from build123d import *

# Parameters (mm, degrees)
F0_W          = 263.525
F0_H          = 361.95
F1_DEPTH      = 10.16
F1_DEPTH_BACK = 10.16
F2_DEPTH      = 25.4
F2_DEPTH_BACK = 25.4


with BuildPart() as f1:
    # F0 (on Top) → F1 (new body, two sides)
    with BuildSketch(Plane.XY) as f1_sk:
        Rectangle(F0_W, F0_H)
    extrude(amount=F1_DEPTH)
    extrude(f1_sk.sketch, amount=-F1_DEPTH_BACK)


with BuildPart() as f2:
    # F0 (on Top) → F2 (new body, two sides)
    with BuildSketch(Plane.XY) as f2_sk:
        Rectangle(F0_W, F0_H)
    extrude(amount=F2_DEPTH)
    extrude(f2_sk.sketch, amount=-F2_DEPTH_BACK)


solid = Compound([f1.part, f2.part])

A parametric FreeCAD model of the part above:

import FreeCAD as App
import Part
import Sketcher
Q = App.Units.Quantity

doc = App.newDocument("Part")
body = doc.addObject("PartDesign::Body", "Body")

sketch1 = body.newObject("Sketcher::SketchObject", "Sketch")
sketch1.AttachmentSupport = (doc.getObject("XY_Plane"), [""])
sketch1.MapMode = "FlatFace"
sketch1.addGeometry(Part.LineSegment(App.Vector(-132, 181, 0), App.Vector(-132, -181, 0)), False)
sketch1.addGeometry(Part.LineSegment(App.Vector(-132, -181, 0), App.Vector(132, -181, 0)), False)
sketch1.addGeometry(Part.LineSegment(App.Vector(132, -181, 0), App.Vector(132, 181, 0)), False)
sketch1.addGeometry(Part.LineSegment(App.Vector(132, 181, 0), App.Vector(-132, 181, 0)), False)
sketch1.addConstraint(Sketcher.Constraint("Coincident", 0, 2, 1, 1))
sketch1.addConstraint(Sketcher.Constraint("Coincident", 1, 2, 2, 1))
sketch1.addConstraint(Sketcher.Constraint("Coincident", 2, 2, 3, 1))
sketch1.addConstraint(Sketcher.Constraint("Coincident", 3, 2, 0, 1))
sketch1.addConstraint(Sketcher.Constraint("Vertical", 0))
sketch1.addConstraint(Sketcher.Constraint("Horizontal", 1))
sketch1.addConstraint(Sketcher.Constraint("Vertical", 2))
sketch1.addConstraint(Sketcher.Constraint("Horizontal", 3))
sketch1.addConstraint(Sketcher.Constraint("Symmetric", 0, 2, 2, 2, -1, 1))
sketch1.addConstraint(Sketcher.Constraint("DistanceY", 0, 2, 0, 1, Q("14.25 in")))
sketch1.addConstraint(Sketcher.Constraint("DistanceX", 1, 1, 1, 2, Q("10.375 in")))
pad1 = body.newObject("PartDesign::Pad", "Pad")
pad1.Profile = sketch1
pad1.Type = "TwoLengths"
pad1.Length = Q("0.4 in")
pad1.Length2 = Q("0.4 in")
body2 = doc.addObject("PartDesign::Body", "Body001")

sketch2 = body2.newObject("Sketcher::SketchObject", "Sketch001")
sketch2.AttachmentSupport = (doc.getObject("XY_Plane001"), [""])
sketch2.MapMode = "FlatFace"
sketch2.addGeometry(Part.LineSegment(App.Vector(-132, 181, 0), App.Vector(-132, -181, 0)), False)
sketch2.addGeometry(Part.LineSegment(App.Vector(-132, -181, 0), App.Vector(132, -181, 0)), False)
sketch2.addGeometry(Part.LineSegment(App.Vector(132, -181, 0), App.Vector(132, 181, 0)), False)
sketch2.addGeometry(Part.LineSegment(App.Vector(132, 181, 0), App.Vector(-132, 181, 0)), False)
sketch2.addConstraint(Sketcher.Constraint("Coincident", 0, 2, 1, 1))
sketch2.addConstraint(Sketcher.Constraint("Coincident", 1, 2, 2, 1))
sketch2.addConstraint(Sketcher.Constraint("Coincident", 2, 2, 3, 1))
sketch2.addConstraint(Sketcher.Constraint("Coincident", 3, 2, 0, 1))
sketch2.addConstraint(Sketcher.Constraint("Vertical", 0))
sketch2.addConstraint(Sketcher.Constraint("Horizontal", 1))
sketch2.addConstraint(Sketcher.Constraint("Vertical", 2))
sketch2.addConstraint(Sketcher.Constraint("Horizontal", 3))
sketch2.addConstraint(Sketcher.Constraint("Symmetric", 0, 2, 2, 2, -1, 1))
sketch2.addConstraint(Sketcher.Constraint("DistanceY", 0, 2, 0, 1, Q("14.25 in")))
sketch2.addConstraint(Sketcher.Constraint("DistanceX", 1, 1, 1, 2, Q("10.375 in")))
pad2 = body2.newObject("PartDesign::Pad", "Pad001")
pad2.Profile = sketch2
pad2.Type = "TwoLengths"
pad2.Length = Q("1 in")
pad2.Length2 = Q("1 in")

doc.recompute()
